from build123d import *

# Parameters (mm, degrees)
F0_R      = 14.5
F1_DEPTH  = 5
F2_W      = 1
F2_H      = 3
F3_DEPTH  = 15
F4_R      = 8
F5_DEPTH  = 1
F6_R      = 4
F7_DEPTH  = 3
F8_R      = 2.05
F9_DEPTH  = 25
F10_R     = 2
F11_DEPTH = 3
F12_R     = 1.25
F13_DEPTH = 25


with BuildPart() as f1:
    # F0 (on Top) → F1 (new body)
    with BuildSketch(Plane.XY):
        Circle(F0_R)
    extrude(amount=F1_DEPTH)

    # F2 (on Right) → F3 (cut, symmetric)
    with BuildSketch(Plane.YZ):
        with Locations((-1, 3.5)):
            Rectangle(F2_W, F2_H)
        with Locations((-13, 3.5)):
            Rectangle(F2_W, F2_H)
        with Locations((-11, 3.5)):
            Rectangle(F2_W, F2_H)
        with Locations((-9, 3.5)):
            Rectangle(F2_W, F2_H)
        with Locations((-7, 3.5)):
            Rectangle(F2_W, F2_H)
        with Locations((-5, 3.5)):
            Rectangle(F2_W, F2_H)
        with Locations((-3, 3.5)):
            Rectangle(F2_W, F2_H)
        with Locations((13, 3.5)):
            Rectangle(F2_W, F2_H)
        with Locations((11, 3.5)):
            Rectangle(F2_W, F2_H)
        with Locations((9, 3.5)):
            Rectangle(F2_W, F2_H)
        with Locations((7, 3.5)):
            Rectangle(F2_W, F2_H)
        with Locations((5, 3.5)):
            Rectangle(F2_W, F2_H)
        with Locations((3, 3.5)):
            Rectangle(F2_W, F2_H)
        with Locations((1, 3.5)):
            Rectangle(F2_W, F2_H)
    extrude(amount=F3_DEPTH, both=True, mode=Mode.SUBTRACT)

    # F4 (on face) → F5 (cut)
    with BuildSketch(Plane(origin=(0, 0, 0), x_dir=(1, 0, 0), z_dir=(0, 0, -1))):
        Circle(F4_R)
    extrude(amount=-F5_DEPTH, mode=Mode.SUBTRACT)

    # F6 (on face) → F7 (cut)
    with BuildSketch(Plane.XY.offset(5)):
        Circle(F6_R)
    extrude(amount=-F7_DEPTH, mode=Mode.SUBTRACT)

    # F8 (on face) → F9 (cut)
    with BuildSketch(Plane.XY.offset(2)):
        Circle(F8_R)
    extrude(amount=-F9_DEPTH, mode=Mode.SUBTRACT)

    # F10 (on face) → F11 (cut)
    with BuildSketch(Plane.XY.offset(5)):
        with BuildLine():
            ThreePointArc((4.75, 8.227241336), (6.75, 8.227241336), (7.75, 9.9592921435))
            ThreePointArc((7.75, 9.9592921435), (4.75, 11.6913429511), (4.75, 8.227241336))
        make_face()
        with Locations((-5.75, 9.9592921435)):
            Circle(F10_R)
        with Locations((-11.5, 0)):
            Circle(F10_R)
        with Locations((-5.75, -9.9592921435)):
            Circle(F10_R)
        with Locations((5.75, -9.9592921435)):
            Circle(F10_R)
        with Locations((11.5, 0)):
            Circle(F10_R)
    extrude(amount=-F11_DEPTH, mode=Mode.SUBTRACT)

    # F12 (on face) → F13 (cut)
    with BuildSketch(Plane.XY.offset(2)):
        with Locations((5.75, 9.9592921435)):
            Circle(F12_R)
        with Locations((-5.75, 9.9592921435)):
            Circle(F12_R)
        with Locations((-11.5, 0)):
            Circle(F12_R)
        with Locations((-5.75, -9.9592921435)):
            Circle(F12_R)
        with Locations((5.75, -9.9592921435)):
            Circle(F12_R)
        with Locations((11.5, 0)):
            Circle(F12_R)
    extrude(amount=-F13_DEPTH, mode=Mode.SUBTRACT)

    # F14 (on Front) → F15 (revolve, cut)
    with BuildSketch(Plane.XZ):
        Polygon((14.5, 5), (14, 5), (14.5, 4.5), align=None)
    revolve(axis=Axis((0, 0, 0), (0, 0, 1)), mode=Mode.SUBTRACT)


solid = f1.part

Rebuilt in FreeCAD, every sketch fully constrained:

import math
import FreeCAD as App
import Part
import Sketcher
from FreeCAD import Vector

doc = App.newDocument("Part")
params = doc.addObject("Spreadsheet::Sheet", "Params")
for row, (alias, value) in enumerate([
    ("sketch1_diameter", "29 mm"),
    ("pad1_length", "5 mm"),
    ("sketch2_width", "1 mm"),
    ("sketch2_height", "3 mm"),
    ("pocket1_length", "30 mm"),
    ("sketch3_diameter", "16 mm"),
    ("pocket2_length", "1 mm"),
    ("sketch4_diameter", "8 mm"),
    ("pocket3_length", "3 mm"),
    ("sketch5_diameter", "4.1 mm"),
    ("pocket4_length", "25 mm"),
    ("sketch6_diameter", "4 mm"),
    ("sketch6_width", "1 mm"),
    ("pocket5_length", "3 mm"),
    ("sketch7_diameter", "2.5 mm"),
    ("pocket6_length", "25 mm"),
    ("sketch8_width", "0.5 mm"),
    ("groove_angle", "360 deg"),
], start=1):
    params.set(f"A{row}", alias)
    params.set(f"B{row}", "=" + value)
    params.setAlias(f"B{row}", alias)

body = doc.addObject("PartDesign::Body", "Body")

sketch1 = doc.addObject("Sketcher::SketchObject", "Sketch")
body.addObject(sketch1)
sketch1.AttachmentSupport = (doc.XY_Plane, [""])
sketch1.MapMode = "FlatFace"
sketch1.addGeometry(Part.Circle(Vector(0, 0, 0), Vector(0, 0, 1), 14), False)
sketch1.addConstraint([
    Sketcher.Constraint("Coincident", 0, 3, -1, 1),
    Sketcher.Constraint("Diameter", 0, 29.0),
])
sketch1.setExpression("Constraints[1]", "Params.sketch1_diameter")
pad1 = doc.addObject("PartDesign::Pad", "Pad")
body.addObject(pad1)
pad1.Profile = sketch1
pad1.setExpression("Length", "Params.pad1_length")

sketch2 = doc.addObject("Sketcher::SketchObject", "Sketch001")
body.addObject(sketch2)
sketch2.AttachmentSupport = (doc.YZ_Plane, [""])
sketch2.MapMode = "FlatFace"
sketch2.addGeometry([
    Part.LineSegment(Vector(-1.5, 5, 0), Vector(-1.5, 2, 0)),
    Part.LineSegment(Vector(-1.5, 2, 0), Vector(-0.5, 2, 0)),
    Part.LineSegment(Vector(-0.5, 2, 0), Vector(-0.5, 5, 0)),
    Part.LineSegment(Vector(-0.5, 5, 0), Vector(-1.5, 5, 0)),
    Part.LineSegment(Vector(-13.5, 5, 0), Vector(-13.5, 2, 0)),
    Part.LineSegment(Vector(-13.5, 2, 0), Vector(-12.5, 2, 0)),
    Part.LineSegment(Vector(-12.5, 2, 0), Vector(-12.5, 5, 0)),
    Part.LineSegment(Vector(-12.5, 5, 0), Vector(-13.5, 5, 0)),
    Part.LineSegment(Vector(-11.5, 5, 0), Vector(-11.5, 2, 0)),
    Part.LineSegment(Vector(-11.5, 2, 0), Vector(-10.5, 2, 0)),
    Part.LineSegment(Vector(-10.5, 2, 0), Vector(-10.5, 5, 0)),
    Part.LineSegment(Vector(-10.5, 5, 0), Vector(-11.5, 5, 0)),
    Part.LineSegment(Vector(-9.5, 5, 0), Vector(-9.5, 2, 0)),
    Part.LineSegment(Vector(-9.5, 2, 0), Vector(-8.5, 2, 0)),
    Part.LineSegment(Vector(-8.5, 2, 0), Vector(-8.5, 5, 0)),
    Part.LineSegment(Vector(-8.5, 5, 0), Vector(-9.5, 5, 0)),
    Part.LineSegment(Vector(-7.5, 5, 0), Vector(-7.5, 2, 0)),
    Part.LineSegment(Vector(-7.5, 2, 0), Vector(-6.5, 2, 0)),
    Part.LineSegment(Vector(-6.5, 2, 0), Vector(-6.5, 5, 0)),
    Part.LineSegment(Vector(-6.5, 5, 0), Vector(-7.5, 5, 0)),
    Part.LineSegment(Vector(-5.5, 5, 0), Vector(-5.5, 2, 0)),
    Part.LineSegment(Vector(-5.5, 2, 0), Vector(-4.5, 2, 0)),
    Part.LineSegment(Vector(-4.5, 2, 0), Vector(-4.5, 5, 0)),
    Part.LineSegment(Vector(-4.5, 5, 0), Vector(-5.5, 5, 0)),
    Part.LineSegment(Vector(-3.5, 5, 0), Vector(-3.5, 2, 0)),
    Part.LineSegment(Vector(-3.5, 2, 0), Vector(-2.5, 2, 0)),
    Part.LineSegment(Vector(-2.5, 2, 0), Vector(-2.5, 5, 0)),
    Part.LineSegment(Vector(-2.5, 5, 0), Vector(-3.5, 5, 0)),
    Part.LineSegment(Vector(12.5, 5, 0), Vector(12.5, 2, 0)),
    Part.LineSegment(Vector(12.5, 2, 0), Vector(13.5, 2, 0)),
    Part.LineSegment(Vector(13.5, 2, 0), Vector(13.5, 5, 0)),
    Part.LineSegment(Vector(13.5, 5, 0), Vector(12.5, 5, 0)),
    Part.LineSegment(Vector(10.5, 5, 0), Vector(10.5, 2, 0)),
    Part.LineSegment(Vector(10.5, 2, 0), Vector(11.5, 2, 0)),
    Part.LineSegment(Vector(11.5, 2, 0), Vector(11.5, 5, 0)),
    Part.LineSegment(Vector(11.5, 5, 0), Vector(10.5, 5, 0)),
    Part.LineSegment(Vector(8.5, 5, 0), Vector(8.5, 2, 0)),
    Part.LineSegment(Vector(8.5, 2, 0), Vector(9.5, 2, 0)),
    Part.LineSegment(Vector(9.5, 2, 0), Vector(9.5, 5, 0)),
    Part.LineSegment(Vector(9.5, 5, 0), Vector(8.5, 5, 0)),
    Part.LineSegment(Vector(6.5, 5, 0), Vector(6.5, 2, 0)),
    Part.LineSegment(Vector(6.5, 2, 0), Vector(7.5, 2, 0)),
    Part.LineSegment(Vector(7.5, 2, 0), Vector(7.5, 5, 0)),
    Part.LineSegment(Vector(7.5, 5, 0), Vector(6.5, 5, 0)),
    Part.LineSegment(Vector(4.5, 5, 0), Vector(4.5, 2, 0)),
    Part.LineSegment(Vector(4.5, 2, 0), Vector(5.5, 2, 0)),
    Part.LineSegment(Vector(5.5, 2, 0), Vector(5.5, 5, 0)),
    Part.LineSegment(Vector(5.5, 5, 0), Vector(4.5, 5, 0)),
    Part.LineSegment(Vector(2.5, 5, 0), Vector(2.5, 2, 0)),
    Part.LineSegment(Vector(2.5, 2, 0), Vector(3.5, 2, 0)),
    Part.LineSegment(Vector(3.5, 2, 0), Vector(3.5, 5, 0)),
    Part.LineSegment(Vector(3.5, 5, 0), Vector(2.5, 5, 0)),
    Part.LineSegment(Vector(0.5, 5, 0), Vector(0.5, 2, 0)),
    Part.LineSegment(Vector(0.5, 2, 0), Vector(1.5, 2, 0)),
    Part.LineSegment(Vector(1.5, 2, 0), Vector(1.5, 5, 0)),
    Part.LineSegment(Vector(1.5, 5, 0), Vector(0.5, 5, 0)),
], False)
sketch2.addConstraint([
    Sketcher.Constraint("Coincident", 0, 2, 1, 1),
    Sketcher.Constraint("Coincident", 1, 2, 2, 1),
    Sketcher.Constraint("Coincident", 2, 2, 3, 1),
    Sketcher.Constraint("Coincident", 3, 2, 0, 1),
    Sketcher.Constraint("Coincident", 4, 2, 5, 1),
    Sketcher.Constraint("Coincident", 5, 2, 6, 1),
    Sketcher.Constraint("Coincident", 6, 2, 7, 1),
    Sketcher.Constraint("Coincident", 7, 2, 4, 1),
    Sketcher.Constraint("Coincident", 8, 2, 9, 1),
    Sketcher.Constraint("Coincident", 9, 2, 10, 1),
    Sketcher.Constraint("Coincident", 10, 2, 11, 1),
    Sketcher.Constraint("Coincident", 11, 2, 8, 1),
    Sketcher.Constraint("Coincident", 12, 2, 13, 1),
    Sketcher.Constraint("Coincident", 13, 2, 14, 1),
    Sketcher.Constraint("Coincident", 14, 2, 15, 1),
    Sketcher.Constraint("Coincident", 15, 2, 12, 1),
    Sketcher.Constraint("Coincident", 16, 2, 17, 1),
    Sketcher.Constraint("Coincident", 17, 2, 18, 1),
    Sketcher.Constraint("Coincident", 18, 2, 19, 1),
    Sketcher.Constraint("Coincident", 19, 2, 16, 1),
    Sketcher.Constraint("Coincident", 20, 2, 21, 1),
    Sketcher.Constraint("Coincident", 21, 2, 22, 1),
    Sketcher.Constraint("Coincident", 22, 2, 23, 1),
    Sketcher.Constraint("Coincident", 23, 2, 20, 1),
    Sketcher.Constraint("Coincident", 24, 2, 25, 1),
    Sketcher.Constraint("Coincident", 25, 2, 26, 1),
    Sketcher.Constraint("Coincident", 26, 2, 27, 1),
    Sketcher.Constraint("Coincident", 27, 2, 24, 1),
    Sketcher.Constraint("Coincident", 28, 2, 29, 1),
    Sketcher.Constraint("Coincident", 29, 2, 30, 1),
    Sketcher.Constraint("Coincident", 30, 2, 31, 1),
    Sketcher.Constraint("Coincident", 31, 2, 28, 1),
    Sketcher.Constraint("Coincident", 32, 2, 33, 1),
    Sketcher.Constraint("Coincident", 33, 2, 34, 1),
    Sketcher.Constraint("Coincident", 34, 2, 35, 1),
    Sketcher.Constraint("Coincident", 35, 2, 32, 1),
    Sketcher.Constraint("Coincident", 36, 2, 37, 1),
    Sketcher.Constraint("Coincident", 37, 2, 38, 1),
    Sketcher.Constraint("Coincident", 38, 2, 39, 1),
    Sketcher.Constraint("Coincident", 39, 2, 36, 1),
    Sketcher.Constraint("Coincident", 40, 2, 41, 1),
    Sketcher.Constraint("Coincident", 41, 2, 42, 1),
    Sketcher.Constraint("Coincident", 42, 2, 43, 1),
    Sketcher.Constraint("Coincident", 43, 2, 40, 1),
    Sketcher.Constraint("Coincident", 44, 2, 45, 1),
    Sketcher.Constraint("Coincident", 45, 2, 46, 1),
    Sketcher.Constraint("Coincident", 46, 2, 47, 1),
    Sketcher.Constraint("Coincident", 47, 2, 44, 1),
    Sketcher.Constraint("Coincident", 48, 2, 49, 1),
    Sketcher.Constraint("Coincident", 49, 2, 50, 1),
    Sketcher.Constraint("Coincident", 50, 2, 51, 1),
    Sketcher.Constraint("Coincident", 51, 2, 48, 1),
    Sketcher.Constraint("Coincident", 52, 2, 53, 1),
    Sketcher.Constraint("Coincident", 53, 2, 54, 1),
    Sketcher.Constraint("Coincident", 54, 2, 55, 1),
    Sketcher.Constraint("Coincident", 55, 2, 52, 1),
    Sketcher.Constraint("Vertical", 0),
    Sketcher.Constraint("Horizontal", 1),
    Sketcher.Constraint("Vertical", 2),
    Sketcher.Constraint("Horizontal", 3),
    Sketcher.Constraint("Vertical", 4),
    Sketcher.Constraint("Horizontal", 5),
    Sketcher.Constraint("Vertical", 6),
    Sketcher.Constraint("Horizontal", 7),
    Sketcher.Constraint("Vertical", 8),
    Sketcher.Constraint("Horizontal", 9),
    Sketcher.Constraint("Vertical", 10),
    Sketcher.Constraint("Horizontal", 11),
    Sketcher.Constraint("Vertical", 12),
    Sketcher.Constraint("Horizontal", 13),
    Sketcher.Constraint("Vertical", 14),
    Sketcher.Constraint("Horizontal", 15),
    Sketcher.Constraint("Vertical", 16),
    Sketcher.Constraint("Horizontal", 17),
    Sketcher.Constraint("Vertical", 18),
    Sketcher.Constraint("Horizontal", 19),
    Sketcher.Constraint("Vertical", 20),
    Sketcher.Constraint("Horizontal", 21),
    Sketcher.Constraint("Vertical", 22),
    Sketcher.Constraint("Horizontal", 23),
    Sketcher.Constraint("Vertical", 24),
    Sketcher.Constraint("Horizontal", 25),
    Sketcher.Constraint("Vertical", 26),
    Sketcher.Constraint("Horizontal", 27),
    Sketcher.Constraint("Vertical", 28),
    Sketcher.Constraint("Horizontal", 29),
    Sketcher.Constraint("Vertical", 30),
    Sketcher.Constraint("Horizontal", 31),
    Sketcher.Constraint("Vertical", 32),
    Sketcher.Constraint("Horizontal", 33),
    Sketcher.Constraint("Vertical", 34),
    Sketcher.Constraint("Horizontal", 35),
    Sketcher.Constraint("Vertical", 36),
    Sketcher.Constraint("Horizontal", 37),
    Sketcher.Constraint("Vertical", 38),
    Sketcher.Constraint("Horizontal", 39),
    Sketcher.Constraint("Vertical", 40),
    Sketcher.Constraint("Horizontal", 41),
    Sketcher.Constraint("Vertical", 42),
    Sketcher.Constraint("Horizontal", 43),
    Sketcher.Constraint("Vertical", 44),
    Sketcher.Constraint("Horizontal", 45),
    Sketcher.Constraint("Vertical", 46),
    Sketcher.Constraint("Horizontal", 47),
    Sketcher.Constraint("Vertical", 48),
    Sketcher.Constraint("Horizontal", 49),
    Sketcher.Constraint("Vertical", 50),
    Sketcher.Constraint("Horizontal", 51),
    Sketcher.Constraint("Vertical", 52),
    Sketcher.Constraint("Horizontal", 53),
    Sketcher.Constraint("Vertical", 54),
    Sketcher.Constraint("Horizontal", 55),
    Sketcher.Constraint("Symmetric", 5, 2, 28, 2, -2),
    Sketcher.Constraint("Symmetric", 7, 2, 30, 2, -2),
    Sketcher.Constraint("Symmetric", 9, 2, 32, 2, -2),
    Sketcher.Constraint("Symmetric", 11, 2, 34, 2, -2),
    Sketcher.Constraint("Symmetric", 13, 2, 36, 2, -2),
    Sketcher.Constraint("Symmetric", 15, 2, 38, 2, -2),
    Sketcher.Constraint("Symmetric", 17, 2, 40, 2, -2),
    Sketcher.Constraint("Symmetric", 19, 2, 42, 2, -2),
    Sketcher.Constraint("Symmetric", 21, 2, 44, 2, -2),
    Sketcher.Constraint("Symmetric", 23, 2, 46, 2, -2),
    Sketcher.Constraint("Symmetric", 25, 2, 48, 2, -2),
    Sketcher.Constraint("Symmetric", 27, 2, 50, 2, -2),
    Sketcher.Constraint("Symmetric", 1, 2, 52, 2, -2),
    Sketcher.Constraint("Symmetric", 3, 2, 54, 2, -2),
    Sketcher.Constraint("Horizontal", 1, 2, 4, 2),
    Sketcher.Constraint("Horizontal", 3, 2, 6, 2),
    Sketcher.Constraint("Horizontal", 5, 2, 8, 2),
    Sketcher.Constraint("Horizontal", 7, 2, 10, 2),
    Sketcher.Constraint("Horizontal", 9, 2, 12, 2),
    Sketcher.Constraint("Horizontal", 11, 2, 14, 2),
    Sketcher.Constraint("Horizontal", 13, 2, 16, 2),
    Sketcher.Constraint("Horizontal", 15, 2, 18, 2),
    Sketcher.Constraint("Horizontal", 17, 2, 20, 2),
    Sketcher.Constraint("Horizontal", 19, 2, 22, 2),
    Sketcher.Constraint("Horizontal", 21, 2, 24, 2),
    Sketcher.Constraint("Horizontal", 23, 2, 26, 2),
    Sketcher.Constraint("Equal", 3, 5),
    Sketcher.Constraint("Equal", 7, 9),
    Sketcher.Constraint("Equal", 11, 13),
    Sketcher.Constraint("Equal", 15, 17),
    Sketcher.Constraint("Equal", 19, 21),
    Sketcher.Constraint("Equal", 23, 25),
    Sketcher.Constraint("DistanceX", 1, 1, 1, 2, 1.0),
    Sketcher.Constraint("DistanceY", 0, 2, 0, 1, 3.0),
    Sketcher.Constraint("DistanceY", -1, 1, 0, 2, 2.0),
    Sketcher.Constraint("DistanceX", 4, 2, 0, 2, 12.0),
    Sketcher.Constraint("DistanceX", 5, 2, 8, 2, 1.0),
    Sketcher.Constraint("DistanceX", 9, 2, 12, 2, 1.0),
    Sketcher.Constraint("DistanceX", 13, 2, 16, 2, 1.0),
    Sketcher.Constraint("DistanceX", 17, 2, 20, 2, 1.0),
    Sketcher.Constraint("DistanceX", 21, 2, 24, 2, 1.0),
    Sketcher.Constraint("DistanceX", 1, 2, 28, 2, 13.0),
])
sketch2.setExpression("Constraints[144]", "Params.sketch2_width")
sketch2.setExpression("Constraints[145]", "Params.sketch2_height")
pocket1 = doc.addObject("PartDesign::Pocket", "Pocket")
body.addObject(pocket1)
pocket1.Profile = sketch2
pocket1.setExpression("Length", "Params.pocket1_length")
pocket1.Midplane = True

sketch3 = doc.addObject("Sketcher::SketchObject", "Sketch002")
body.addObject(sketch3)
sketch3.AttachmentSupport = (doc.XY_Plane, [""])
sketch3.MapMode = "FlatFace"
sketch3.addGeometry(Part.Circle(Vector(0, 0, 0), Vector(0, 0, 1), 8), False)
sketch3.addConstraint([
    Sketcher.Constraint("Coincident", 0, 3, -1, 1),
    Sketcher.Constraint("Diameter", 0, 16.0),
])
sketch3.setExpression("Constraints[1]", "Params.sketch3_diameter")
pocket2 = doc.addObject("PartDesign::Pocket", "Pocket001")
body.addObject(pocket2)
pocket2.Profile = sketch3
pocket2.setExpression("Length", "Params.pocket2_length")
pocket2.Reversed = True

sketch4 = doc.addObject("Sketcher::SketchObject", "Sketch003")
body.addObject(sketch4)
sketch4.AttachmentSupport = (doc.XY_Plane, [""])
sketch4.MapMode = "FlatFace"
sketch4.AttachmentOffset = App.Placement(Vector(0, 0, 5), App.Rotation())
sketch4.addGeometry(Part.Circle(Vector(0, 0, 0), Vector(0, 0, 1), 4), False)
sketch4.addConstraint([
    Sketcher.Constraint("Coincident", 0, 3, -1, 1),
    Sketcher.Constraint("Diameter", 0, 8.0),
])
sketch4.setExpression("Constraints[1]", "Params.sketch4_diameter")
pocket3 = doc.addObject("PartDesign::Pocket", "Pocket002")
body.addObject(pocket3)
pocket3.Profile = sketch4
pocket3.setExpression("Length", "Params.pocket3_length")

sketch5 = doc.addObject("Sketcher::SketchObject", "Sketch004")
body.addObject(sketch5)
sketch5.AttachmentSupport = (doc.XY_Plane, [""])
sketch5.MapMode = "FlatFace"
sketch5.AttachmentOffset = App.Placement(Vector(0, 0, 2), App.Rotation())
sketch5.addGeometry(Part.Circle(Vector(0, 0, 0), Vector(0, 0, 1), 2), False)
sketch5.addConstraint([
    Sketcher.Constraint("Coincident", 0, 3, -1, 1),
    Sketcher.Constraint("Diameter", 0, 4.1),
])
sketch5.setExpression("Constraints[1]", "Params.sketch5_diameter")
pocket4 = doc.addObject("PartDesign::Pocket", "Pocket003")
body.addObject(pocket4)
pocket4.Profile = sketch5
pocket4.setExpression("Length", "Params.pocket4_length")

sketch6 = doc.addObject("Sketcher::SketchObject", "Sketch005")
body.addObject(sketch6)
sketch6.AttachmentSupport = (doc.XY_Plane, [""])
sketch6.MapMode = "FlatFace"
sketch6.AttachmentOffset = App.Placement(Vector(0, 0, 5), App.Rotation())
sketch6.addGeometry([
    Part.ArcOfCircle(Part.Circle(Vector(5.8, 10, 0), Vector(0, 0, 1), 2), math.radians(-120), math.radians(0)),
    Part.ArcOfCircle(Part.Circle(Vector(5.8, 10, 0), Vector(0, 0, 1), 2), math.radians(0), math.radians(240)),
    Part.Circle(Vector(-5.8, 10, 0), Vector(0, 0, 1), 2),
    Part.Circle(Vector(-11.5, 0, 0), Vector(0, 0, 1), 2),
    Part.Circle(Vector(-5.8, -10, 0), Vector(0, 0, 1), 2),
    Part.Circle(Vector(5.8, -10, 0), Vector(0, 0, 1), 2),
    Part.Circle(Vector(11.5, 0, 0), Vector(0, 0, 1), 2),
], False)
sketch6.addConstraint([
    Sketcher.Constraint("Tangent", 0, 1, 1, 2),
    Sketcher.Constraint("Coincident", 1, 1, 0, 2),
    Sketcher.Constraint("Equal", 1, 2),
    Sketcher.Constraint("Equal", 2, 3),
    Sketcher.Constraint("Equal", 3, 4),
    Sketcher.Constraint("Equal", 4, 5),
    Sketcher.Constraint("Equal", 5, 6),
    Sketcher.Constraint("Symmetric", 0, 3, 4, 3, -1, 1),
    Sketcher.Constraint("Symmetric", 2, 3, 5, 3, -1, 1),
    Sketcher.Constraint("Symmetric", 3, 3, 6, 3, -1, 1),
    Sketcher.Constraint("Symmetric", 0, 3, 2, 3, -2),
    Sketcher.Constraint("PointOnObject", 3, 3, -1),
    Sketcher.Constraint("Horizontal", 2, 3, 1, 1),
    Sketcher.Constraint("Diameter", 2, 4.0),
    Sketcher.Constraint("DistanceX", 0, 1, 0, 3, 1.0),
    Sketcher.Constraint("DistanceX", 3, 3, -1, 1, 11.5),
    Sketcher.Constraint("DistanceX", 2, 3, 0, 3, 11.5),
    Sketcher.Constraint("DistanceY", -1, 1, 0, 1, 8.227241),
])
sketch6.setExpression("Constraints[13]", "Params.sketch6_diameter")
sketch6.setExpression("Constraints[14]", "Params.sketch6_width")
pocket5 = doc.addObject("PartDesign::Pocket", "Pocket004")
body.addObject(pocket5)
pocket5.Profile = sketch6
pocket5.setExpression("Length", "Params.pocket5_length")

sketch7 = doc.addObject("Sketcher::SketchObject", "Sketch006")
body.addObject(sketch7)
sketch7.AttachmentSupport = (doc.XY_Plane, [""])
sketch7.MapMode = "FlatFace"
sketch7.AttachmentOffset = App.Placement(Vector(0, 0, 2), App.Rotation())
sketch7.addGeometry([
    Part.Circle(Vector(5.8, 10, 0), Vector(0, 0, 1), 1.2),
    Part.Circle(Vector(-5.8, 10, 0), Vector(0, 0, 1), 1.2),
    Part.Circle(Vector(-11.5, 0, 0), Vector(0, 0, 1), 1.2),
    Part.Circle(Vector(-5.8, -10, 0), Vector(0, 0, 1), 1.2),
    Part.Circle(Vector(5.8, -10, 0), Vector(0, 0, 1), 1.2),
    Part.Circle(Vector(11.5, 0, 0), Vector(0, 0, 1), 1.2),
], False)
sketch7.addConstraint([
    Sketcher.Constraint("Equal", 0, 1),
    Sketcher.Constraint("Equal", 1, 2),
    Sketcher.Constraint("Equal", 2, 3),
    Sketcher.Constraint("Equal", 3, 4),
    Sketcher.Constraint("Equal", 4, 5),
    Sketcher.Constraint("Symmetric", 0, 3, 3, 3, -1, 1),
    Sketcher.Constraint("Symmetric", 1, 3, 4, 3, -1, 1),
    Sketcher.Constraint("Symmetric", 2, 3, 5, 3, -1, 1),
    Sketcher.Constraint("Symmetric", 0, 3, 1, 3, -2),
    Sketcher.Constraint("PointOnObject", 2, 3, -1),
    Sketcher.Constraint("Diameter", 0, 2.5),
    Sketcher.Constraint("DistanceX", 2, 3, 5, 3, 23.0),
    Sketcher.Constraint("DistanceX", 1, 3, 0, 3, 11.5),
    Sketcher.Constraint("DistanceY", -1, 1, 0, 3, 9.959292),
])
sketch7.setExpression("Constraints[10]", "Params.sketch7_diameter")
pocket6 = doc.addObject("PartDesign::Pocket", "Pocket005")
body.addObject(pocket6)
pocket6.Profile = sketch7
pocket6.setExpression("Length", "Params.pocket6_length")

sketch8 = doc.addObject("Sketcher::SketchObject", "Sketch007")
body.addObject(sketch8)
sketch8.AttachmentSupport = (doc.XZ_Plane, [""])
sketch8.MapMode = "FlatFace"
sketch8.addGeometry([
    Part.LineSegment(Vector(14.5, 5, 0), Vector(14, 5, 0)),
    Part.LineSegment(Vector(14, 5, 0), Vector(14.5, 4.5, 0)),
    Part.LineSegment(Vector(14.5, 4.5, 0), Vector(14.5, 5, 0)),
], False)
sketch8.addConstraint([
    Sketcher.Constraint("Coincident", 0, 2, 1, 1),
    Sketcher.Constraint("Coincident", 1, 2, 2, 1),
    Sketcher.Constraint("Coincident", 2, 2, 0, 1),
    Sketcher.Constraint("Horizontal", 0),
    Sketcher.Constraint("Vertical", 2),
    Sketcher.Constraint("Equal", 0, 2),
    Sketcher.Constraint("DistanceX", 0, 2, 0, 1, 0.5),
    Sketcher.Constraint("DistanceX", -1, 1, 0, 2, 14.0),
    Sketcher.Constraint("DistanceY", -1, 1, 0, 2, 5.0),
])
sketch8.setExpression("Constraints[6]", "Params.sketch8_width")
groove = doc.addObject("PartDesign::Groove", "Groove")
body.addObject(groove)
groove.Profile = sketch8
groove.ReferenceAxis = (sketch8, ["V_Axis"])
groove.setExpression("Angle", "Params.groove_angle")

doc.recompute()
